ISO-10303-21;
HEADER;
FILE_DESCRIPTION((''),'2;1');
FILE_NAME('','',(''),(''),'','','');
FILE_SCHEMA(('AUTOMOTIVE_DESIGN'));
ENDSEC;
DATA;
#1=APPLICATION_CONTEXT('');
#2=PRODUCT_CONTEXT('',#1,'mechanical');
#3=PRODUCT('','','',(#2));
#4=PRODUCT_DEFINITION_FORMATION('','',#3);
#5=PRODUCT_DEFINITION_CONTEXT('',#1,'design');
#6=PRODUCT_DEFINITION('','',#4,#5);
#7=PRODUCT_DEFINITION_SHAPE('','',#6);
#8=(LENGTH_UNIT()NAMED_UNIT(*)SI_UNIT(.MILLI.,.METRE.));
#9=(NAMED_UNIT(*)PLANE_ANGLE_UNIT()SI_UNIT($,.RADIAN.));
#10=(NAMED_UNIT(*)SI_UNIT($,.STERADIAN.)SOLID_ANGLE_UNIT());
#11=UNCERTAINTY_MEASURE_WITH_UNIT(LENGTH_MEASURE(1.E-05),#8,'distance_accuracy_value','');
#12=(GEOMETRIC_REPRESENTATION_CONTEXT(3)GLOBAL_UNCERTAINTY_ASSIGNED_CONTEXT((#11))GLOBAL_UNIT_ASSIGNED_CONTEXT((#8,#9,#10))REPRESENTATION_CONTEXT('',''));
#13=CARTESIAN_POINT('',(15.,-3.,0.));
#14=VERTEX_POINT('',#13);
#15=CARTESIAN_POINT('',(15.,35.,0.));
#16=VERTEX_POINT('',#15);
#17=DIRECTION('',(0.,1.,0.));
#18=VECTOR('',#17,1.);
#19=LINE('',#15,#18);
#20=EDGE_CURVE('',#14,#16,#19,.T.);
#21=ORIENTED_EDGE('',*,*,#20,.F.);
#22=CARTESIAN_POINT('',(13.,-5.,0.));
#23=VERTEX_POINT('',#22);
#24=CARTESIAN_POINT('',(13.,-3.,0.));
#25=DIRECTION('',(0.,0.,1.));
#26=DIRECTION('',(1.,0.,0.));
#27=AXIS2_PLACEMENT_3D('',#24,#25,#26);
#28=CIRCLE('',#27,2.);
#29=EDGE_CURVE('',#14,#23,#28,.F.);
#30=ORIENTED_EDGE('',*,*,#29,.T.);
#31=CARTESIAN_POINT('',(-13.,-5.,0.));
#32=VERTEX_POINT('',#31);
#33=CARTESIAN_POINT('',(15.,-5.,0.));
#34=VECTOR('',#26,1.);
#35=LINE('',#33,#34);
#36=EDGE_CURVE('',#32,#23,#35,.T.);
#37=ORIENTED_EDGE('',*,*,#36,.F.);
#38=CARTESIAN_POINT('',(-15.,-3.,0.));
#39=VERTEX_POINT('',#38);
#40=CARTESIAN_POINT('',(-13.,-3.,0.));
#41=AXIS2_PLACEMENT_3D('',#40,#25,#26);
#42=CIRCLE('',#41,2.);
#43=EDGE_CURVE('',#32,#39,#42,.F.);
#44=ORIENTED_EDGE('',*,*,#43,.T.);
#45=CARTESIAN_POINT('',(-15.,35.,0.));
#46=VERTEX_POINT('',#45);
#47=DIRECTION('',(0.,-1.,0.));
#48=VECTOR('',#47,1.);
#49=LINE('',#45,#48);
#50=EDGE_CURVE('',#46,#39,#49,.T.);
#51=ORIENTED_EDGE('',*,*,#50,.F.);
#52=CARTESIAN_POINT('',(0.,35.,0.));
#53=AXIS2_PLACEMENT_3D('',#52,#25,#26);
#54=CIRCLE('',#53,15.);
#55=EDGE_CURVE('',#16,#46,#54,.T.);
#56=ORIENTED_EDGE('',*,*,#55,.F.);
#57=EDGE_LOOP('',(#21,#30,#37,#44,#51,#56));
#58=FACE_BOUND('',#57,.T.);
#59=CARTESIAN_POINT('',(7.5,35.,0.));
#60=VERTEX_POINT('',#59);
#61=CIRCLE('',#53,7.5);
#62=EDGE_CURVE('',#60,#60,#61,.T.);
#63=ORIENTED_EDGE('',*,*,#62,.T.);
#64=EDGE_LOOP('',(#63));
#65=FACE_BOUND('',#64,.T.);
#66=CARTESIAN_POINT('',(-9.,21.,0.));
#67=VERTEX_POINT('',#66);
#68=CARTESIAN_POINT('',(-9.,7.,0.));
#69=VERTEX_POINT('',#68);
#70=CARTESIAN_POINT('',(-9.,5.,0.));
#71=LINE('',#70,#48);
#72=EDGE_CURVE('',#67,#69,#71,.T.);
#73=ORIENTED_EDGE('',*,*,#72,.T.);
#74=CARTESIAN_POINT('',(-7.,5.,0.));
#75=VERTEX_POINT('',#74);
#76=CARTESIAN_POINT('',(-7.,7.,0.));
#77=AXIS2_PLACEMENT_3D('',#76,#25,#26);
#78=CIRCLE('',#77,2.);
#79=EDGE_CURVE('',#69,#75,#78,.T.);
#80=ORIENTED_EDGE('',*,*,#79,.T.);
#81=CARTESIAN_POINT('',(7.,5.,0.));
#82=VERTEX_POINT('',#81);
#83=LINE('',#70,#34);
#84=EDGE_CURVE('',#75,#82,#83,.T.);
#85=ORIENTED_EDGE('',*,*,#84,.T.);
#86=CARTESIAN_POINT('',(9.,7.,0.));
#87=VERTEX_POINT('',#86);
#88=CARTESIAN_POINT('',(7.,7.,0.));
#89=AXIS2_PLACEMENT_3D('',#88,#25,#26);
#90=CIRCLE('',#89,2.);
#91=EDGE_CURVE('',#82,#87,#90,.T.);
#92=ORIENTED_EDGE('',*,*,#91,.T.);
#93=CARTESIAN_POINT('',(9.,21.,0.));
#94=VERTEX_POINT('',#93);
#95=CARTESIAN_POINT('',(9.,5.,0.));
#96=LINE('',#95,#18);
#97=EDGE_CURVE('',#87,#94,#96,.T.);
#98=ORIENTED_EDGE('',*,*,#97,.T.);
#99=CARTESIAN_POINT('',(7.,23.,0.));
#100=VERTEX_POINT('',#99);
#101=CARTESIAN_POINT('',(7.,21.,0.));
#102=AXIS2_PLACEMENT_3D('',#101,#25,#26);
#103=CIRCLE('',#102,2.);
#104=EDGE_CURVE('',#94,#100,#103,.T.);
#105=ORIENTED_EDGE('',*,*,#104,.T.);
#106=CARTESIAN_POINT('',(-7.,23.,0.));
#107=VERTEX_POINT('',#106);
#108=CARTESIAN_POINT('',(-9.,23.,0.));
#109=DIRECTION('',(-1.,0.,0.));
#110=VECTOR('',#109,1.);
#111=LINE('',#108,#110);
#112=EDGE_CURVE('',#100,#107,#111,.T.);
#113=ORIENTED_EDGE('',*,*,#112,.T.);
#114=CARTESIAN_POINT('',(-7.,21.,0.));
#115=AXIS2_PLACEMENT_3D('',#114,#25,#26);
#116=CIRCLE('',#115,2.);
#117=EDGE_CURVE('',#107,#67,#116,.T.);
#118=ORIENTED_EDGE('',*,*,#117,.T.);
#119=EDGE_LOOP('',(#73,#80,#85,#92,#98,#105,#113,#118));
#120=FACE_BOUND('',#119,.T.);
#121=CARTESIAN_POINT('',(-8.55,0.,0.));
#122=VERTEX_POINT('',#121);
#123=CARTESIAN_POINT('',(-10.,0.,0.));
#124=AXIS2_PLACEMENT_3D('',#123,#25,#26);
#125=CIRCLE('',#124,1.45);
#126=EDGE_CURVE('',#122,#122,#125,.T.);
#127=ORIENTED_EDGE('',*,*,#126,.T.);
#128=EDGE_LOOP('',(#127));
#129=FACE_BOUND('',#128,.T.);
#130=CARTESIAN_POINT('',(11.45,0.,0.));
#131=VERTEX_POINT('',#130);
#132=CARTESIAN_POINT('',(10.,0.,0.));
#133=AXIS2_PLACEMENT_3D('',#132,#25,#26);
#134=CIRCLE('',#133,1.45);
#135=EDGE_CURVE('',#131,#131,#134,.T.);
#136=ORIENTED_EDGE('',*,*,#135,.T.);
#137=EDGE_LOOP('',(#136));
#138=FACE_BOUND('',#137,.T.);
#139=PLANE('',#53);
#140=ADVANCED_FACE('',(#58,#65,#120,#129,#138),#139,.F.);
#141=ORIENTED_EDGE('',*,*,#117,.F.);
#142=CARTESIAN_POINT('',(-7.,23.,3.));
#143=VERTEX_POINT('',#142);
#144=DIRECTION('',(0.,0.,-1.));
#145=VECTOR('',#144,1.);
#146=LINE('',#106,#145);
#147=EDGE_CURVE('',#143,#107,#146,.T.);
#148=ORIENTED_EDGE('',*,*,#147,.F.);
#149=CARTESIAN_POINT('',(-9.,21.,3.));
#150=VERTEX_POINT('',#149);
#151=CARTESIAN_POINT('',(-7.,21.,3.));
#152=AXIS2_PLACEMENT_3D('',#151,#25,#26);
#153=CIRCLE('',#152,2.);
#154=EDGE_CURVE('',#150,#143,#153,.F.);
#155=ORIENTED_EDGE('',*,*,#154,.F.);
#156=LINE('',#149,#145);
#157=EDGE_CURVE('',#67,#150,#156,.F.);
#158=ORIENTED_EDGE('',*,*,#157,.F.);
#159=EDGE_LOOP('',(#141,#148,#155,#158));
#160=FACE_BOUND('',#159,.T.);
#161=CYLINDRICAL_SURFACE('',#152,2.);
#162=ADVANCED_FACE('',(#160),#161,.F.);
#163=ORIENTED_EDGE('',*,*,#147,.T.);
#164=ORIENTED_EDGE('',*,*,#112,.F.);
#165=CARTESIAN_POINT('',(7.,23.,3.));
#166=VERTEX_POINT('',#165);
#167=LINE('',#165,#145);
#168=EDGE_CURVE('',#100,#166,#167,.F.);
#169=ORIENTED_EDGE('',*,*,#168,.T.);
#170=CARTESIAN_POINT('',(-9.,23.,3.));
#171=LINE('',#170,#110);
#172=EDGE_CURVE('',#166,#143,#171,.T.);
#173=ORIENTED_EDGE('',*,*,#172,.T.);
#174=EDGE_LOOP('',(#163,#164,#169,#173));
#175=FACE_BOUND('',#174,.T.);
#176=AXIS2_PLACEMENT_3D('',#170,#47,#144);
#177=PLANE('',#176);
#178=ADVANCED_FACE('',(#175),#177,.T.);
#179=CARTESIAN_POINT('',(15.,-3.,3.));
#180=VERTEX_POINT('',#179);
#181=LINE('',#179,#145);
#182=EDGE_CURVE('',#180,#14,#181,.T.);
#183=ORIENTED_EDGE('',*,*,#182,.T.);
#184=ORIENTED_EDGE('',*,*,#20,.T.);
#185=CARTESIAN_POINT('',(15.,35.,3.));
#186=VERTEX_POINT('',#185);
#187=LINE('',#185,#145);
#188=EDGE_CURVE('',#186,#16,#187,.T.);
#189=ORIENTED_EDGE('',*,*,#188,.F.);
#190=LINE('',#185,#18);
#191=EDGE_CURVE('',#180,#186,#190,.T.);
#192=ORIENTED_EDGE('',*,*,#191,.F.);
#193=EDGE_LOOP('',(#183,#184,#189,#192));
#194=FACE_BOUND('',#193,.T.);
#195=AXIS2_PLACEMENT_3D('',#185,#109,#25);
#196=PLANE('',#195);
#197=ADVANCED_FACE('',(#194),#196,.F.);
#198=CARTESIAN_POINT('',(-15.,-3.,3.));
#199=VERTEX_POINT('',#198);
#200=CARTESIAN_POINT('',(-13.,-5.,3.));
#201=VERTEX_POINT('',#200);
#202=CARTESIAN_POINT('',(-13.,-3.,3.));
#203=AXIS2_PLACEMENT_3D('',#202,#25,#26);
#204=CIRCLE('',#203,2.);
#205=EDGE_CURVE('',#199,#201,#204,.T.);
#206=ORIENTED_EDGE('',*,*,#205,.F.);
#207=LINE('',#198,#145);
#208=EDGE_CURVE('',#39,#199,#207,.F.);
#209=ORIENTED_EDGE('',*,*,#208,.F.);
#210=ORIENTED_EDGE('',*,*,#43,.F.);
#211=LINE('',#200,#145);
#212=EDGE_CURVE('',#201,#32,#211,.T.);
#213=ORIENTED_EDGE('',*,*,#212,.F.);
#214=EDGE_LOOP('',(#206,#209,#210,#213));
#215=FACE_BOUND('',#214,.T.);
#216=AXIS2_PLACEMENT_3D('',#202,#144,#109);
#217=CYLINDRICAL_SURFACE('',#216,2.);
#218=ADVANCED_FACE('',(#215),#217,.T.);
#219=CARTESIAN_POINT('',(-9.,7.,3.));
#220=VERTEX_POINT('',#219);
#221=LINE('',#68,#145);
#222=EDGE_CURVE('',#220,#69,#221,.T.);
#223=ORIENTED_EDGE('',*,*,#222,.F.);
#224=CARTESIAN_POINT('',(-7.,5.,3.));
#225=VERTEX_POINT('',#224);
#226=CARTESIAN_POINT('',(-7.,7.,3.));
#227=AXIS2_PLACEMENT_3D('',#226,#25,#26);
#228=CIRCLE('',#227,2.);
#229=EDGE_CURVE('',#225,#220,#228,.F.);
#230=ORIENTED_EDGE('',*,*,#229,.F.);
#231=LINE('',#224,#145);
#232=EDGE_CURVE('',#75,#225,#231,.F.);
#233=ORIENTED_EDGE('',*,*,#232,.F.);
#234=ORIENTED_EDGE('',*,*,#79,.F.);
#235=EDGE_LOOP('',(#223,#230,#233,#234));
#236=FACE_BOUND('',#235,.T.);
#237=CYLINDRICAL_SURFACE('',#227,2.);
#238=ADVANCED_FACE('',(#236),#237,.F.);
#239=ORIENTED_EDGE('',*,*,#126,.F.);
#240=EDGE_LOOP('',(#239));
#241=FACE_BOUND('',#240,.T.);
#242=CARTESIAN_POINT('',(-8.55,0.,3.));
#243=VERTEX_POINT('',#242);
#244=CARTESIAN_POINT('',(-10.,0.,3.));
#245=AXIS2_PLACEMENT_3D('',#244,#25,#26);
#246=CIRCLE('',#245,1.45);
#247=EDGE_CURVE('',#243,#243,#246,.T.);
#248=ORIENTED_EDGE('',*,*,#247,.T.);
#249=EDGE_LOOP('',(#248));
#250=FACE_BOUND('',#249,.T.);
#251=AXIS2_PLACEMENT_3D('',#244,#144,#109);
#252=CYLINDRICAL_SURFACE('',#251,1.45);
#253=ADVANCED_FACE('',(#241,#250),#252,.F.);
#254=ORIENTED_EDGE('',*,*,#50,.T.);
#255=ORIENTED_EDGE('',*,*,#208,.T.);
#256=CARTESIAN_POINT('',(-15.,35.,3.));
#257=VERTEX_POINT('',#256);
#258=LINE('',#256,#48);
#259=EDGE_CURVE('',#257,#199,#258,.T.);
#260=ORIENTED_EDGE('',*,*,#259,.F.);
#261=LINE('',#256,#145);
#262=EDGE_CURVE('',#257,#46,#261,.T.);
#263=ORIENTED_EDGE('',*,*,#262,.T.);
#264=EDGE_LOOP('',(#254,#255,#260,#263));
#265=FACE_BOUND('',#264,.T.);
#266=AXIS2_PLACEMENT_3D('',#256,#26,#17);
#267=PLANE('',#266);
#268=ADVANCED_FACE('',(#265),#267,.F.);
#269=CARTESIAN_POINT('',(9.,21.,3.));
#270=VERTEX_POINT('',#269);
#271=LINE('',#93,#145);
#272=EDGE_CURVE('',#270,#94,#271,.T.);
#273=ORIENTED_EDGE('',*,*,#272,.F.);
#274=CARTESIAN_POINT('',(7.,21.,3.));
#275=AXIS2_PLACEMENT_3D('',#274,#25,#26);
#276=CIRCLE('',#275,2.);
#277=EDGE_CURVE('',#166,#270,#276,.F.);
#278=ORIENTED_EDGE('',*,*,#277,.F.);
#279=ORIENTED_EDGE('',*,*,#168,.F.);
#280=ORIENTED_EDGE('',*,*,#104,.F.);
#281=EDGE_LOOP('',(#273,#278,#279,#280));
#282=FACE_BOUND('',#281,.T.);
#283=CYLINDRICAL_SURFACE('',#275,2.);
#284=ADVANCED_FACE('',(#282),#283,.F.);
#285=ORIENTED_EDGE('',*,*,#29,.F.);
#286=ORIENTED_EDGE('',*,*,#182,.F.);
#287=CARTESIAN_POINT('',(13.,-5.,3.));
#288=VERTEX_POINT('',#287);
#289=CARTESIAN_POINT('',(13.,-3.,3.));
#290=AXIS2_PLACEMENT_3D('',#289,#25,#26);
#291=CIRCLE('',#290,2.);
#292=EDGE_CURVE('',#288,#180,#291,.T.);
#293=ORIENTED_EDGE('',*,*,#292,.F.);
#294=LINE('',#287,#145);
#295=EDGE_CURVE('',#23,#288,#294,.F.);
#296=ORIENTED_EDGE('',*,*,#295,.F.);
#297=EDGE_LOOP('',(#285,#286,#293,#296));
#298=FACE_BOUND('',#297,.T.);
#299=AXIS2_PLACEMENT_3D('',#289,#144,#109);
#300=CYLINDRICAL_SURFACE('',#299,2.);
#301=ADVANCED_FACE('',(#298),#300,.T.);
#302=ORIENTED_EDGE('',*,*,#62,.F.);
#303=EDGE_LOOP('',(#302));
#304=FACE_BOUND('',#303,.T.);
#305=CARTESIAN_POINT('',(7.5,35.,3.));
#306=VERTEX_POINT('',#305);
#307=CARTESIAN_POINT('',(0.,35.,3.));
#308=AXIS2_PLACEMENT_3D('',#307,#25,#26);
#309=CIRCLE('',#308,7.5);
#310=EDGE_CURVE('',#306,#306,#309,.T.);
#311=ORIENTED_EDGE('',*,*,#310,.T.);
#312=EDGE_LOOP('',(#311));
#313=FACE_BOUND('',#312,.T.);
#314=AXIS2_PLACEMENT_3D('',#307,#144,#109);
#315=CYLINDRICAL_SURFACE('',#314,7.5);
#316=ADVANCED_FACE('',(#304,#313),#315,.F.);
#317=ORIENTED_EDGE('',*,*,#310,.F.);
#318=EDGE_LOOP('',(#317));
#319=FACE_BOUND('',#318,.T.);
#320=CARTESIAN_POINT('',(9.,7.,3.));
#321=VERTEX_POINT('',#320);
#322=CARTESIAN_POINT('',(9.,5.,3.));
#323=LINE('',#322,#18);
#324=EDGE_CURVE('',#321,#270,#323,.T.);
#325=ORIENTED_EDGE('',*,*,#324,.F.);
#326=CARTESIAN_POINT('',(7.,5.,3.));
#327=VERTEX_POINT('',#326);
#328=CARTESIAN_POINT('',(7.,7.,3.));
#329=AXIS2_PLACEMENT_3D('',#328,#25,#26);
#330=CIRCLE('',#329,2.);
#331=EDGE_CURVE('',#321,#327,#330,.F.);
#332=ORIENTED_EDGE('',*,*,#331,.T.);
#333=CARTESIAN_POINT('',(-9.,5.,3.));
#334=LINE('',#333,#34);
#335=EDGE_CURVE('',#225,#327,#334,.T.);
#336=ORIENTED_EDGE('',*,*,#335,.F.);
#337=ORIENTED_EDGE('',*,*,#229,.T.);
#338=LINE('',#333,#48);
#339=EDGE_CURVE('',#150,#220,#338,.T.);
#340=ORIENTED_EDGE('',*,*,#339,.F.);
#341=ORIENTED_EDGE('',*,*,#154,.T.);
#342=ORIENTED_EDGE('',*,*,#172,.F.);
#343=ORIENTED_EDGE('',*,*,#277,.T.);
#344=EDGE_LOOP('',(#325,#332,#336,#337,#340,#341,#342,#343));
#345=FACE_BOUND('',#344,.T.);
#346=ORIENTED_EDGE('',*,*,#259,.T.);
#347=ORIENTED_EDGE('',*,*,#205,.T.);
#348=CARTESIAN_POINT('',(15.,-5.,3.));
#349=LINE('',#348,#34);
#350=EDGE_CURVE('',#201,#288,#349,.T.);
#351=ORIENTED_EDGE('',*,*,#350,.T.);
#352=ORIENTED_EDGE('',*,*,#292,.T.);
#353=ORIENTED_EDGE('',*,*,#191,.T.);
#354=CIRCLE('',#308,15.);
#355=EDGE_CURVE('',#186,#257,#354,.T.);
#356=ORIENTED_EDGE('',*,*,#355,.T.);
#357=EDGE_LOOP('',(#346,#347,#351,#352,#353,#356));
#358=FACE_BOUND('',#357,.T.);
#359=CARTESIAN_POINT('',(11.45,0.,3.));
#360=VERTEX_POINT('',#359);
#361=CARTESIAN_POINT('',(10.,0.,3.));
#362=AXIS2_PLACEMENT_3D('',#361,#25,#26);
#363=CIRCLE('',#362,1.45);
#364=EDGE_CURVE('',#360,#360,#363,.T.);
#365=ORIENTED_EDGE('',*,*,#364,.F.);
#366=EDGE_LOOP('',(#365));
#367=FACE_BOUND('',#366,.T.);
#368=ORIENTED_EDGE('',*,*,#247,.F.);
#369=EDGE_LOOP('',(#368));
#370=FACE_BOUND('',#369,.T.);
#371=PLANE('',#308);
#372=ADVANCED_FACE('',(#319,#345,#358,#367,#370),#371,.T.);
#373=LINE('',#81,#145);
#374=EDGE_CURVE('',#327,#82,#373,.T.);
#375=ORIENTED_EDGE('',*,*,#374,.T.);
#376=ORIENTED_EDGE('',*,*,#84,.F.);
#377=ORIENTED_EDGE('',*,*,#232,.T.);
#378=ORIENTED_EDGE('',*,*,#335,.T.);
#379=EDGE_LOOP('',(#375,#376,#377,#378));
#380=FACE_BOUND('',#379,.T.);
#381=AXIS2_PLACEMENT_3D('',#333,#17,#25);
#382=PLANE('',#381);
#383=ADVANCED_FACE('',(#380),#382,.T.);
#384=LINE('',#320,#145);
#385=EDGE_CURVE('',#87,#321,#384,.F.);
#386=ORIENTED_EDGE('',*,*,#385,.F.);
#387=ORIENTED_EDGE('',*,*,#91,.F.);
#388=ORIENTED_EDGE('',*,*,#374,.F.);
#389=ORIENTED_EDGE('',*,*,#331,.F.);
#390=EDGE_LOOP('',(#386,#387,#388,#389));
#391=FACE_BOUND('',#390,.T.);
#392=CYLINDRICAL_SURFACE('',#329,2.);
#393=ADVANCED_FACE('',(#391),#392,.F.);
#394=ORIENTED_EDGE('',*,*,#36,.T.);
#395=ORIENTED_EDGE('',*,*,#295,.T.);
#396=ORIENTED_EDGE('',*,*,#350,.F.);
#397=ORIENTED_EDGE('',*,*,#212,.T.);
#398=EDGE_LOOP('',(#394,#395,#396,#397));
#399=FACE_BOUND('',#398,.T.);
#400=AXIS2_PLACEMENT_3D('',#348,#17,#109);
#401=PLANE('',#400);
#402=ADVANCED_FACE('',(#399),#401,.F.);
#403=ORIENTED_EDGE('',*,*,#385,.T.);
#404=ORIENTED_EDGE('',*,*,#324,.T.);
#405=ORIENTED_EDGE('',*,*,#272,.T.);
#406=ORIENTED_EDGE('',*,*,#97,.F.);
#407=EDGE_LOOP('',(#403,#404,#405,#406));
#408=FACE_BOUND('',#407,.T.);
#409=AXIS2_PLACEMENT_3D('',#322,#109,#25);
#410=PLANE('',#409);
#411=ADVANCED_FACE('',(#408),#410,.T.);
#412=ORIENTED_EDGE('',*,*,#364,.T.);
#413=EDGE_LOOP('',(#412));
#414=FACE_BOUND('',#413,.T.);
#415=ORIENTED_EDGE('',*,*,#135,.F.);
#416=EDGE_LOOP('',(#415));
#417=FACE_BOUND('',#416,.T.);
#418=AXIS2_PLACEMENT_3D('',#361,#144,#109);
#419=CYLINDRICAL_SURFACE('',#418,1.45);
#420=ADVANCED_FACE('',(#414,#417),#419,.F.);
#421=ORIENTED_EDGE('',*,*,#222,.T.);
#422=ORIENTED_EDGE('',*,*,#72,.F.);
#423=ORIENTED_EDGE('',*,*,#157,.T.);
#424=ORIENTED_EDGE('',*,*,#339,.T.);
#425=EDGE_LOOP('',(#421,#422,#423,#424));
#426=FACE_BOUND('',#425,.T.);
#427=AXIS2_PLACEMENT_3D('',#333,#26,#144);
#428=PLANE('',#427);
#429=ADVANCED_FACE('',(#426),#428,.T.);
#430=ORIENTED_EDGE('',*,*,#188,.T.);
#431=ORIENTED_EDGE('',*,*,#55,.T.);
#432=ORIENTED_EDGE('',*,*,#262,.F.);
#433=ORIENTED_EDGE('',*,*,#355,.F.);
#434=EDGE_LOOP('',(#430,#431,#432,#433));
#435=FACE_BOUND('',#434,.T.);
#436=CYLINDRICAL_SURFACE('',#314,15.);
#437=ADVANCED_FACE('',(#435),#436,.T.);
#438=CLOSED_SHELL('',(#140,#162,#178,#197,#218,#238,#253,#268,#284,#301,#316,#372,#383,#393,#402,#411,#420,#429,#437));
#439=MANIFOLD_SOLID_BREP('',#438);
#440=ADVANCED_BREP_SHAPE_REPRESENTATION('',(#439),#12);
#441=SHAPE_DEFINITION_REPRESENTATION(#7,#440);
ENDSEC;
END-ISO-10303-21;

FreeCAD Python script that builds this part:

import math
import FreeCAD as App
import Part
import Sketcher

V = App.Vector


def edges_at(feature, points):
    """Names of the edges that pass closest to the given points."""
    edges = feature.Shape.Edges
    near = lambda p: min(range(len(edges)), key=lambda i: edges[i].distToShape(Part.Vertex(*p))[0])
    return sorted({f"Edge{near(p) + 1}" for p in points})


def add_polygon(sketch, points):
    """Adds a closed chain of lines whose ends are joined by coincident constraints."""
    first, n = sketch.GeometryCount, len(points)
    for a, b in zip(points, points[1:] + points[:1]):
        sketch.addGeometry(Part.LineSegment(App.Vector(*a, 0), App.Vector(*b, 0)), False)
    for i in range(n):
        sketch.addConstraint(Sketcher.Constraint("Coincident", first + i, 2, first + (i + 1) % n, 1))

doc = App.newDocument("Part")
params = doc.addObject("Spreadsheet::Sheet", "Params")
for row, (alias, value) in enumerate([
    ("sketch1_diameter", "15 mm"),
    ("sketch1_radius", "15 mm"),
    ("sketch1_diameter2", "2.9 mm"),
    ("sketch1_width", "18 mm"),
    ("sketch1_height", "40 mm"),
    ("pad1_length", "3 mm"),
    ("fillet_radius", "2 mm"),
], start=1):
    params.set(f"A{row}", alias)
    params.set(f"B{row}", "=" + value)
    params.setAlias(f"B{row}", alias)

body = doc.addObject("PartDesign::Body", "Body")

# Sketch on XY plane
sketch1 = body.newObject("Sketcher::SketchObject", "Sketch")
sketch1.AttachmentSupport = (doc.getObject("XY_Plane"), [""])
sketch1.MapMode = "FlatFace"
sketch1.addGeometry(Part.LineSegment(V(-15, 35, 0), V(-15, -5, 0)), False)  # 0
sketch1.addGeometry(Part.LineSegment(V(-15, -5, 0), V(15, -5, 0)), False)  # 1
sketch1.addGeometry(Part.LineSegment(V(15, -5, 0), V(15, 35, 0)), False)  # 2
sketch1.addGeometry(Part.ArcOfCircle(Part.Circle(V(0, 35, 0), V(0, 0, 1), 15), math.radians(0), math.radians(180)), False)  # 3
sketch1.addGeometry(Part.Circle(V(-10, 0, 0), V(0, 0, 1), 1.4), False)  # 4
sketch1.addGeometry(Part.Circle(V(10, 0, 0), V(0, 0, 1), 1.4), False)  # 5
add_polygon(sketch1, [(9, 5), (-9, 5), (-9, 23), (9, 23)])  # lines 6-9
sketch1.addGeometry(Part.Circle(V(0, 35, 0), V(0, 0, 1), 7.5), False)  # 10
sketch1.addConstraint([
    Sketcher.Constraint("Coincident", 0, 2, 1, 1),
    Sketcher.Constraint("Coincident", 1, 2, 2, 1),
    Sketcher.Constraint("Tangent", 2, 2, 3, 1),
    Sketcher.Constraint("Tangent", 3, 2, 0, 1),
    Sketcher.Constraint("Vertical", 0),
    Sketcher.Constraint("Horizontal", 1),
    Sketcher.Constraint("Vertical", 2),
    Sketcher.Constraint("Horizontal", 6),
    Sketcher.Constraint("Vertical", 7),
    Sketcher.Constraint("Horizontal", 8),
    Sketcher.Constraint("Vertical", 9),
    Sketcher.Constraint("Coincident", 10, 3, 3, 3),
    Sketcher.Constraint("Equal", 4, 5),
    Sketcher.Constraint("Symmetric", 4, 3, 5, 3, -1, 1),
    Sketcher.Constraint("PointOnObject", 3, 3, -2),
    Sketcher.Constraint("PointOnObject", 4, 3, -1),
    Sketcher.Constraint("Equal", 8, 7),
    Sketcher.Constraint("Diameter", 10, 15.0),
    Sketcher.Constraint("Radius", 3, 15.0),
    Sketcher.Constraint("Diameter", 4, 2.9),
    Sketcher.Constraint("DistanceX", 6, 2, 6, 1, 18.0),
    Sketcher.Constraint("DistanceY", 0, 2, 0, 1, 40.0),
    Sketcher.Constraint("DistanceY", -1, 1, 3, 3, 35.0),
    Sketcher.Constraint("DistanceX", 4, 3, -1, 1, 10.0),
    Sketcher.Constraint("DistanceX", 6, 2, -1, 1, 9.0),
    Sketcher.Constraint("DistanceY", -1, 1, 6, 2, 5.0),
])
sketch1.setExpression("Constraints[21]", "Params.sketch1_diameter")
sketch1.setExpression("Constraints[22]", "Params.sketch1_radius")
sketch1.setExpression("Constraints[23]", "Params.sketch1_diameter2")
sketch1.setExpression("Constraints[24]", "Params.sketch1_width")
sketch1.setExpression("Constraints[25]", "Params.sketch1_height")
pad1 = body.newObject("PartDesign::Pad", "Pad")
pad1.Profile = sketch1
pad1.setExpression("Length", "Params.pad1_length")
doc.recompute()

fillet = body.newObject("PartDesign::Fillet", "Fillet")
fillet.Base = (pad1, edges_at(pad1, [
    (9, 5, 1.5),
    (9, 23, 1.5),
    (-9, 23, 1.5),
    (-9, 5, 1.5),
    (15, -5, 1.5),
    (-15, -5, 1.5),
]))
fillet.setExpression("Radius", "Params.fillet_radius")

doc.recompute()
